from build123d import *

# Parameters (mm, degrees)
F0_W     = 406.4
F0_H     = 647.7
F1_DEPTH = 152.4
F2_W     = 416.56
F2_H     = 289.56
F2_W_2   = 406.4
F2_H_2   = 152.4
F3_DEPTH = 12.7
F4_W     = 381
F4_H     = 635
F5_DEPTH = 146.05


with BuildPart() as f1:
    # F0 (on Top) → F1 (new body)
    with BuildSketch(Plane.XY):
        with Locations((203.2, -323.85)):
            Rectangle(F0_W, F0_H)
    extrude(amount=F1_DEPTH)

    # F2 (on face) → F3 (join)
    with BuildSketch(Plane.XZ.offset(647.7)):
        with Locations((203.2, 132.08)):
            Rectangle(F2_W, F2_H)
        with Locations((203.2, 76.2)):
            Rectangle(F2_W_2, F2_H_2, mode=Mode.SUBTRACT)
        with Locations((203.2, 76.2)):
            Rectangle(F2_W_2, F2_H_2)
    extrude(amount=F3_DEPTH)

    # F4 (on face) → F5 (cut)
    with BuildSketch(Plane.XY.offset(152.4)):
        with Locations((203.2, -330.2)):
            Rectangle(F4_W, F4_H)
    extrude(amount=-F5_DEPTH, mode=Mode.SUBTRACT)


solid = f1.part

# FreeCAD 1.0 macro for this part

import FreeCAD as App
import Part
import Sketcher

V = App.Vector
Q = App.Units.Quantity

doc = App.newDocument("Part")
body = doc.addObject("PartDesign::Body", "Body")

sketch1 = body.newObject("Sketcher::SketchObject", "Sketch")
sketch1.AttachmentSupport = (doc.getObject("XY_Plane"), [""])
sketch1.MapMode = "FlatFace"
sketch1.addGeometry([
    Part.LineSegment(V(0, 0, 0), V(0, -648, 0)),
    Part.LineSegment(V(0, -648, 0), V(406, -648, 0)),
    Part.LineSegment(V(406, -648, 0), V(406, 0, 0)),
    Part.LineSegment(V(406, 0, 0), V(0, 0, 0)),
], False)
sketch1.addConstraint([
    Sketcher.Constraint("Coincident", 0, 2, 1, 1),
    Sketcher.Constraint("Coincident", 1, 2, 2, 1),
    Sketcher.Constraint("Coincident", 2, 2, 3, 1),
    Sketcher.Constraint("Coincident", 3, 2, 0, 1),
    Sketcher.Constraint("Vertical", 0),
    Sketcher.Constraint("Horizontal", 1),
    Sketcher.Constraint("Vertical", 2),
    Sketcher.Constraint("Horizontal", 3),
    Sketcher.Constraint("Coincident", 3, 2, -1, 1),
    Sketcher.Constraint("DistanceX", 1, 1, 1, 2, Q("16 in")),
    Sketcher.Constraint("DistanceY", 0, 2, 0, 1, Q("25.5 in")),
])
pad1 = body.newObject("PartDesign::Pad", "Pad")
pad1.Profile = sketch1
pad1.Length = Q("6 in")

sketch2 = body.newObject("Sketcher::SketchObject", "Sketch001")
sketch2.AttachmentSupport = (doc.getObject("XZ_Plane"), [""])
sketch2.MapMode = "FlatFace"
sketch2.AttachmentOffset = App.Placement(V(0, 0, 25.5 * 25.4), App.Rotation())
sketch2.addGeometry([
    Part.LineSegment(V(-5, 277, 0), V(-5, -13, 0)),
    Part.LineSegment(V(-5, -13, 0), V(411, -13, 0)),
    Part.LineSegment(V(411, -13, 0), V(411, 277, 0)),
    Part.LineSegment(V(411, 277, 0), V(-5, 277, 0)),
], False)
sketch2.addConstraint([
    Sketcher.Constraint("Coincident", 0, 2, 1, 1),
    Sketcher.Constraint("Coincident", 1, 2, 2, 1),
    Sketcher.Constraint("Coincident", 2, 2, 3, 1),
    Sketcher.Constraint("Coincident", 3, 2, 0, 1),
    Sketcher.Constraint("Vertical", 0),
    Sketcher.Constraint("Horizontal", 1),
    Sketcher.Constraint("Vertical", 2),
    Sketcher.Constraint("Horizontal", 3),
    Sketcher.Constraint("DistanceX", 1, 1, 1, 2, Q("16.4 in")),
    Sketcher.Constraint("DistanceY", 0, 2, 0, 1, Q("11.4 in")),
    Sketcher.Constraint("DistanceX", 0, 2, -1, 1, Q("0.2 in")),
    Sketcher.Constraint("DistanceY", 0, 2, -1, 1, Q("0.5 in")),
])
pad2 = body.newObject("PartDesign::Pad", "Pad001")
pad2.Profile = sketch2
pad2.Length = Q("0.5 in")

sketch3 = body.newObject("Sketcher::SketchObject", "Sketch002")
sketch3.AttachmentSupport = (doc.getObject("XY_Plane"), [""])
sketch3.MapMode = "FlatFace"
sketch3.AttachmentOffset = App.Placement(V(0, 0, 6 * 25.4), App.Rotation())
sketch3.addGeometry([
    Part.LineSegment(V(13, -13, 0), V(13, -648, 0)),
    Part.LineSegment(V(13, -648, 0), V(394, -648, 0)),
    Part.LineSegment(V(394, -648, 0), V(394, -13, 0)),
    Part.LineSegment(V(394, -13, 0), V(13, -13, 0)),
], False)
sketch3.addConstraint([
    Sketcher.Constraint("Coincident", 0, 2, 1, 1),
    Sketcher.Constraint("Coincident", 1, 2, 2, 1),
    Sketcher.Constraint("Coincident", 2, 2, 3, 1),
    Sketcher.Constraint("Coincident", 3, 2, 0, 1),
    Sketcher.Constraint("Vertical", 0),
    Sketcher.Constraint("Horizontal", 1),
    Sketcher.Constraint("Vertical", 2),
    Sketcher.Constraint("Horizontal", 3),
    Sketcher.Constraint("DistanceX", 1, 1, 1, 2, Q("15 in")),
    Sketcher.Constraint("DistanceY", 0, 2, 0, 1, Q("25 in")),
    Sketcher.Constraint("DistanceX", -1, 1, 0, 2, Q("0.5 in")),
    Sketcher.Constraint("DistanceY", 0, 2, -1, 1, Q("25.5 in")),
])
pocket1 = body.newObject("PartDesign::Pocket", "Pocket")
pocket1.Profile = sketch3
pocket1.Length = Q("5.75 in")

doc.recompute()
